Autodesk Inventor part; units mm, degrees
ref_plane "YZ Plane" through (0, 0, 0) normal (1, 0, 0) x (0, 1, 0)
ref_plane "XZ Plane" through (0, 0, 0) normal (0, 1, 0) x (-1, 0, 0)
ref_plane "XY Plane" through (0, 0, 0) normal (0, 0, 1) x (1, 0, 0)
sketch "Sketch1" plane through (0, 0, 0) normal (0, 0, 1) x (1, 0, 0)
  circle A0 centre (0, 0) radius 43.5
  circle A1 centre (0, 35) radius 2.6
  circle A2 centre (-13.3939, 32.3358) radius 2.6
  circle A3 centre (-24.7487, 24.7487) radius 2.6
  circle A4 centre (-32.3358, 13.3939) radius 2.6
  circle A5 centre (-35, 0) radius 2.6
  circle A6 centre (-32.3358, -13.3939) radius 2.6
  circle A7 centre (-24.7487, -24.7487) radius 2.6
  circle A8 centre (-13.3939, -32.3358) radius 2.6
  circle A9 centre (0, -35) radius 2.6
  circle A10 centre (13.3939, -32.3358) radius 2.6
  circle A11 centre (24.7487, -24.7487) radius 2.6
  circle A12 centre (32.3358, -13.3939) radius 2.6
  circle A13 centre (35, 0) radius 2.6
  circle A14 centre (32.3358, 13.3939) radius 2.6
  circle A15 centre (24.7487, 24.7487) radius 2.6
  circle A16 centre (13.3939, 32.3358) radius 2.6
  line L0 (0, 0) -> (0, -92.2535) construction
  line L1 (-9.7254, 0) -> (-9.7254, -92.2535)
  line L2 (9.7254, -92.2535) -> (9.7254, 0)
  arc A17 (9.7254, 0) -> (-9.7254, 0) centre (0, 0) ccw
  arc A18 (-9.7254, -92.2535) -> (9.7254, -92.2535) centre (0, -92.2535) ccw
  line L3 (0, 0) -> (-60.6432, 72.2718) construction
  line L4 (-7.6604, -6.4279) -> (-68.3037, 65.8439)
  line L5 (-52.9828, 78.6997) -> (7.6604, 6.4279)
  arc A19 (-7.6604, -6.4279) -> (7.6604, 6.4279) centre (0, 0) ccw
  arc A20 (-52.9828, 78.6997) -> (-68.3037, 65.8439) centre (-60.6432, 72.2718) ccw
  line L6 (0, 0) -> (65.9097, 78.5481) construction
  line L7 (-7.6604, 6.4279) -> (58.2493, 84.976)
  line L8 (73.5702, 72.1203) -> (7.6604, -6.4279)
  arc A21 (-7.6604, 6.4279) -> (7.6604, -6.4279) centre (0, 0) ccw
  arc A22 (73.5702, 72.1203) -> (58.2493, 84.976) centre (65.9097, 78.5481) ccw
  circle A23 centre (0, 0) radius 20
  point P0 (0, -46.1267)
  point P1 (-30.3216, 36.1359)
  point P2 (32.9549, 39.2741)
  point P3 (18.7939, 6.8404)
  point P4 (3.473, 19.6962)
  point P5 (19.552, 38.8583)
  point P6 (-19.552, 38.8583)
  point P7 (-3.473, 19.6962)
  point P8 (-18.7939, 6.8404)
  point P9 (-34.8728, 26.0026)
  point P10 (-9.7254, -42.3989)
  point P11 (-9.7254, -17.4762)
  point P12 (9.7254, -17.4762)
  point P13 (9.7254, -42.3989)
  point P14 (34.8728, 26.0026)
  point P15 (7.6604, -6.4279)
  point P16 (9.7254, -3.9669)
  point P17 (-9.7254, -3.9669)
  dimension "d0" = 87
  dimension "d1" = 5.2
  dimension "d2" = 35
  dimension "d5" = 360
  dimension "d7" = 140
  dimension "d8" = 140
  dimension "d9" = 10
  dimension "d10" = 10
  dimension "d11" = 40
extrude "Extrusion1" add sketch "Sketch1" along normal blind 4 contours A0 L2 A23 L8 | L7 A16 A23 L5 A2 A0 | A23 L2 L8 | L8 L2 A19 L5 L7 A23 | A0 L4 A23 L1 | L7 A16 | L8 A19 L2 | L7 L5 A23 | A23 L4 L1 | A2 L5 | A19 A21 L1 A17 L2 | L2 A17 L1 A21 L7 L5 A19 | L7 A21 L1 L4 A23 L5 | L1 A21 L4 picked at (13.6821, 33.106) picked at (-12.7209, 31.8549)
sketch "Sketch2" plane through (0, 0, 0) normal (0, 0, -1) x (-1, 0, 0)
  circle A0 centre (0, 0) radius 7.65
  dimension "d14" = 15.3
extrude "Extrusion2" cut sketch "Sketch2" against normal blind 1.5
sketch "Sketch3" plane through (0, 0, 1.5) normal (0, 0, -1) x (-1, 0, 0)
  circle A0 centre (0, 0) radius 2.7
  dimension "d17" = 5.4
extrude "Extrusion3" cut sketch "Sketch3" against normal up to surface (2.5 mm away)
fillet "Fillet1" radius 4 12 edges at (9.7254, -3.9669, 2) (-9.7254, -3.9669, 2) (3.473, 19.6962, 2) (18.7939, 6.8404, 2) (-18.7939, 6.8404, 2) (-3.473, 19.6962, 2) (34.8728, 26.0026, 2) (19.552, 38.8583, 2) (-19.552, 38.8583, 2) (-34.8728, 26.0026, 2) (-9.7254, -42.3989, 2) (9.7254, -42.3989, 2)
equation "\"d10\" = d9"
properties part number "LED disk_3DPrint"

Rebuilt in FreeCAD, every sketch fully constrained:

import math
import FreeCAD as App
import Part
import Sketcher
Q = App.Units.Quantity


def edges_at(feature, points):
    """Names of the edges that pass closest to the given points."""
    edges = feature.Shape.Edges
    near = lambda p: min(range(len(edges)), key=lambda i: edges[i].distToShape(Part.Vertex(*p))[0])
    return sorted({f"Edge{near(p) + 1}" for p in points})

doc = App.newDocument("Part")
body = doc.addObject("PartDesign::Body", "Body")

sketch1 = body.newObject("Sketcher::SketchObject", "Sketch")
sketch1.AttachmentSupport = (doc.getObject("XY_Plane"), [""])
sketch1.MapMode = "FlatFace"
sketch1.addGeometry(Part.ArcOfCircle(Part.Circle(App.Vector(0, 0, 0), App.Vector(0, 0, 1), 43.5), math.radians(-77), math.radians(37)), False)
sketch1.addGeometry(Part.LineSegment(App.Vector(34.9, 26, 0), App.Vector(18.8, 6.8, 0)), False)
sketch1.addGeometry(Part.ArcOfCircle(Part.Circle(App.Vector(0, 0, 0), App.Vector(0, 0, 1), 20), math.radians(20), math.radians(80)), False)
sketch1.addGeometry(Part.LineSegment(App.Vector(3.5, 19.7, 0), App.Vector(19.6, 38.9, 0)), False)
sketch1.addGeometry(Part.ArcOfCircle(Part.Circle(App.Vector(0, 0, 0), App.Vector(0, 0, 1), 43.5), math.radians(63), math.radians(117)), False)
sketch1.addGeometry(Part.LineSegment(App.Vector(-19.6, 38.9, 0), App.Vector(-3.5, 19.7, 0)), False)
sketch1.addGeometry(Part.ArcOfCircle(Part.Circle(App.Vector(0, 0, 0), App.Vector(0, 0, 1), 20), math.radians(100), math.radians(160)), False)
sketch1.addGeometry(Part.LineSegment(App.Vector(-18.8, 6.8, 0), App.Vector(-34.9, 26, 0)), False)
sketch1.addGeometry(Part.ArcOfCircle(Part.Circle(App.Vector(0, 0, 0), App.Vector(0, 0, 1), 43.5), math.radians(143), math.radians(257)), False)
sketch1.addGeometry(Part.LineSegment(App.Vector(-9.7, -42.4, 0), App.Vector(-9.7, -4, 0)), False)
sketch1.addGeometry(Part.LineSegment(App.Vector(-9.7, -4, 0), App.Vector(-7.7, -6.4, 0)), False)
sketch1.addGeometry(Part.ArcOfCircle(Part.Circle(App.Vector(0, 0, 0), App.Vector(0, 0, 1), 10), math.radians(-140), math.radians(-40)), False)
sketch1.addGeometry(Part.LineSegment(App.Vector(7.7, -6.4, 0), App.Vector(9.7, -4, 0)), False)
sketch1.addGeometry(Part.LineSegment(App.Vector(9.7, -4, 0), App.Vector(9.7, -42.4, 0)), False)
sketch1.addGeometry(Part.Circle(App.Vector(13.4, -32.3, 0), App.Vector(0, 0, 1), 2.6), False)
sketch1.addGeometry(Part.Circle(App.Vector(24.7, -24.7, 0), App.Vector(0, 0, 1), 2.6), False)
sketch1.addGeometry(Part.Circle(App.Vector(32.3, -13.4, 0), App.Vector(0, 0, 1), 2.6), False)
sketch1.addGeometry(Part.Circle(App.Vector(35, 0, 0), App.Vector(0, 0, 1), 2.6), False)
sketch1.addGeometry(Part.Circle(App.Vector(32.3, 13.4, 0), App.Vector(0, 0, 1), 2.6), False)
sketch1.addGeometry(Part.Circle(App.Vector(0, 35, 0), App.Vector(0, 0, 1), 2.6), False)
sketch1.addGeometry(Part.Circle(App.Vector(-32.3, 13.4, 0), App.Vector(0, 0, 1), 2.6), False)
sketch1.addGeometry(Part.Circle(App.Vector(-13.4, -32.3, 0), App.Vector(0, 0, 1), 2.6), False)
sketch1.addGeometry(Part.Circle(App.Vector(-24.7, -24.7, 0), App.Vector(0, 0, 1), 2.6), False)
sketch1.addGeometry(Part.Circle(App.Vector(-32.3, -13.4, 0), App.Vector(0, 0, 1), 2.6), False)
sketch1.addGeometry(Part.Circle(App.Vector(-35, 0, 0), App.Vector(0, 0, 1), 2.6), False)
sketch1.addConstraint(Sketcher.Constraint("Coincident", 0, 2, 1, 1))
sketch1.addConstraint(Sketcher.Constraint("Coincident", 1, 2, 2, 1))
sketch1.addConstraint(Sketcher.Constraint("Coincident", 2, 2, 3, 1))
sketch1.addConstraint(Sketcher.Constraint("Coincident", 3, 2, 4, 1))
sketch1.addConstraint(Sketcher.Constraint("Coincident", 4, 2, 5, 1))
sketch1.addConstraint(Sketcher.Constraint("Coincident", 5, 2, 6, 1))
sketch1.addConstraint(Sketcher.Constraint("Coincident", 6, 2, 7, 1))
sketch1.addConstraint(Sketcher.Constraint("Coincident", 7, 2, 8, 1))
sketch1.addConstraint(Sketcher.Constraint("Coincident", 8, 2, 9, 1))
sketch1.addConstraint(Sketcher.Constraint("Coincident", 9, 2, 10, 1))
sketch1.addConstraint(Sketcher.Constraint("Tangent", 10, 2, 11, 1))
sketch1.addConstraint(Sketcher.Constraint("Tangent", 11, 2, 12, 1))
sketch1.addConstraint(Sketcher.Constraint("Coincident", 12, 2, 13, 1))
sketch1.addConstraint(Sketcher.Constraint("Coincident", 13, 2, 0, 1))
sketch1.addConstraint(Sketcher.Constraint("Vertical", 9))
sketch1.addConstraint(Sketcher.Constraint("Vertical", 13))
sketch1.addConstraint(Sketcher.Constraint("Coincident", 0, 3, -1, 1))
sketch1.addConstraint(Sketcher.Constraint("Coincident", 2, 3, -1, 1))
sketch1.addConstraint(Sketcher.Constraint("Coincident", 4, 3, -1, 1))
sketch1.addConstraint(Sketcher.Constraint("Coincident", 6, 3, -1, 1))
sketch1.addConstraint(Sketcher.Constraint("Coincident", 8, 3, -1, 1))
sketch1.addConstraint(Sketcher.Constraint("Coincident", 11, 3, -1, 1))
sketch1.addConstraint(Sketcher.Constraint("Equal", 0, 4))
sketch1.addConstraint(Sketcher.Constraint("Equal", 2, 6))
sketch1.addConstraint(Sketcher.Constraint("Equal", 4, 8))
sketch1.addConstraint(Sketcher.Constraint("Equal", 14, 15))
sketch1.addConstraint(Sketcher.Constraint("Equal", 15, 16))
sketch1.addConstraint(Sketcher.Constraint("Equal", 16, 17))
sketch1.addConstraint(Sketcher.Constraint("Equal", 17, 18))
sketch1.addConstraint(Sketcher.Constraint("Equal", 18, 19))
sketch1.addConstraint(Sketcher.Constraint("Equal", 19, 20))
sketch1.addConstraint(Sketcher.Constraint("Equal", 20, 21))
sketch1.addConstraint(Sketcher.Constraint("Equal", 21, 22))
sketch1.addConstraint(Sketcher.Constraint("Equal", 22, 23))
sketch1.addConstraint(Sketcher.Constraint("Equal", 23, 24))
sketch1.addConstraint(Sketcher.Constraint("Symmetric", 16, 3, 20, 3, -1, 1))
sketch1.addConstraint(Sketcher.Constraint("Symmetric", 18, 3, 23, 3, -1, 1))
sketch1.addConstraint(Sketcher.Constraint("Symmetric", 17, 3, 24, 3, -1, 1))
sketch1.addConstraint(Sketcher.Constraint("Symmetric", 18, 3, 20, 3, -2))
sketch1.addConstraint(Sketcher.Constraint("Symmetric", 14, 3, 21, 3, -2))
sketch1.addConstraint(Sketcher.Constraint("Symmetric", 15, 3, 22, 3, -2))
sketch1.addConstraint(Sketcher.Constraint("Symmetric", 9, 2, 12, 2, -2))
sketch1.addConstraint(Sketcher.Constraint("PointOnObject", 17, 3, -1))
sketch1.addConstraint(Sketcher.Constraint("PointOnObject", 19, 3, -2))
sketch1.addConstraint(Sketcher.Constraint("Parallel", 1, 3))
sketch1.addConstraint(Sketcher.Constraint("Parallel", 5, 7))
sketch1.addConstraint(Sketcher.Constraint("Parallel", 7, 10))
sketch1.addConstraint(Sketcher.Constraint("Parallel", 3, 12))
sketch1.addConstraint(Sketcher.Constraint("Horizontal", 3, 2, 4, 2))
sketch1.addConstraint(Sketcher.Constraint("Horizontal", 1, 2, 6, 2))
sketch1.addConstraint(Sketcher.Constraint("Equal", 1, 3))
sketch1.addConstraint(Sketcher.Constraint("Radius", 2, 20.0))
sketch1.addConstraint(Sketcher.Constraint("Radius", 11, 10.0))
sketch1.addConstraint(Sketcher.Constraint("Diameter", 14, 5.2))
sketch1.addConstraint(Sketcher.Constraint("Radius", 0, 43.5))
sketch1.addConstraint(Sketcher.Constraint("DistanceX", -1, 1, 17, 3, 35.0))
sketch1.addConstraint(Sketcher.Constraint("DistanceY", -1, 1, 19, 3, 35.0))
sketch1.addConstraint(Sketcher.Constraint("Angle", 1, Q("-130 deg")))
sketch1.addConstraint(Sketcher.Constraint("DistanceY", 9, 1, 9, 2, 38.432))
sketch1.addConstraint(Sketcher.Constraint("DistanceX", -1, 1, 14, 3, 13.394))
sketch1.addConstraint(Sketcher.Constraint("DistanceY", 16, 3, -1, 1, 13.394))
sketch1.addConstraint(Sketcher.Constraint("DistanceX", -1, 1, 2, 2, 3.473))
sketch1.addConstraint(Sketcher.Constraint("DistanceY", 14, 3, 15, 3, 7.587))
sketch1.addConstraint(Sketcher.Constraint("DistanceX", 15, 3, 16, 3, 7.587))
sketch1.addConstraint(Sketcher.Constraint("DistanceX", 14, 3, 16, 3, 18.942))
sketch1.addConstraint(Sketcher.Constraint("DistanceY", 14, 3, 16, 3, 18.942))
pad1 = body.newObject("PartDesign::Pad", "Pad")
pad1.Profile = sketch1
pad1.Length = 4

sketch2 = body.newObject("Sketcher::SketchObject", "Sketch001")
sketch2.AttachmentSupport = (doc.getObject("XY_Plane"), [""])
sketch2.MapMode = "FlatFace"
sketch2.addGeometry(Part.Circle(App.Vector(0, 0, 0), App.Vector(0, 0, 1), 8), False)
sketch2.addConstraint(Sketcher.Constraint("Coincident", 0, 3, -1, 1))
sketch2.addConstraint(Sketcher.Constraint("Diameter", 0, 15.3))
pocket1 = body.newObject("PartDesign::Pocket", "Pocket")
pocket1.Profile = sketch2
pocket1.Length = 1.5
pocket1.Reversed = True

sketch3 = body.newObject("Sketcher::SketchObject", "Sketch002")
sketch3.AttachmentSupport = (doc.getObject("XY_Plane"), [""])
sketch3.MapMode = "FlatFace"
sketch3.AttachmentOffset = App.Placement(App.Vector(0, 0, 1.5), App.Rotation())
sketch3.addGeometry(Part.Circle(App.Vector(0, 0, 0), App.Vector(0, 0, 1), 2.7), False)
sketch3.addConstraint(Sketcher.Constraint("Coincident", 0, 3, -1, 1))
sketch3.addConstraint(Sketcher.Constraint("Diameter", 0, 5.4))
pocket2 = body.newObject("PartDesign::Pocket", "Pocket001")
pocket2.Profile = sketch3
pocket2.Length = 2.5
pocket2.Reversed = True
doc.recompute()

fillet = body.newObject("PartDesign::Fillet", "Fillet")
fillet.Base = (pocket2, edges_at(pocket2, [
    (9.725, -3.967, 2),
    (-9.725, -3.967, 2),
    (3.473, 19.696, 2),
    (18.794, 6.84, 2),
    (-18.794, 6.84, 2),
    (-3.473, 19.696, 2),
    (34.873, 26.003, 2),
    (19.552, 38.858, 2),
    (-19.552, 38.858, 2),
    (-34.873, 26.003, 2),
    (-9.725, -42.399, 2),
    (9.725, -42.399, 2),
]))
fillet.Radius = 4

doc.recompute()
